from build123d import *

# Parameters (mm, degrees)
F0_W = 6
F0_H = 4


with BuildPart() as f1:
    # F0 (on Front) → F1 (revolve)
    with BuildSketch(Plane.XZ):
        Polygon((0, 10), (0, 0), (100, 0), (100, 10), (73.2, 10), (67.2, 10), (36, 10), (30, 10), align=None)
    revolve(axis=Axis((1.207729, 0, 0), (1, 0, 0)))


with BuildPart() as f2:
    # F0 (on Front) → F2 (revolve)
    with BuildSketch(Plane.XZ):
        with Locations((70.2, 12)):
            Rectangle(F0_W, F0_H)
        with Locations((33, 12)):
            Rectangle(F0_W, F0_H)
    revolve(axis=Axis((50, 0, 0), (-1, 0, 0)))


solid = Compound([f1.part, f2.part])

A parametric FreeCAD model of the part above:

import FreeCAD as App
import Part
import Sketcher


def add_polygon(sketch, points):
    """Adds a closed chain of lines whose ends are joined by coincident constraints."""
    first, n = sketch.GeometryCount, len(points)
    for a, b in zip(points, points[1:] + points[:1]):
        sketch.addGeometry(Part.LineSegment(App.Vector(*a, 0), App.Vector(*b, 0)), False)
    for i in range(n):
        sketch.addConstraint(Sketcher.Constraint("Coincident", first + i, 2, first + (i + 1) % n, 1))

doc = App.newDocument("Part")
params = doc.addObject("Spreadsheet::Sheet", "Params")
for row, (alias, value) in enumerate([
    ("sketch1_width", "100 mm"),
    ("sketch1_height", "10 mm"),
    ("revolution_angle", "360 deg"),
    ("sketch2_width", "6 mm"),
    ("sketch2_height", "4 mm"),
    ("revolution2_angle", "360 deg"),
], start=1):
    params.set(f"A{row}", alias)
    params.set(f"B{row}", "=" + value)
    params.setAlias(f"B{row}", alias)

body = doc.addObject("PartDesign::Body", "Body")

sketch1 = body.newObject("Sketcher::SketchObject", "Sketch")
sketch1.AttachmentSupport = (doc.getObject("XZ_Plane"), [""])
sketch1.MapMode = "FlatFace"
add_polygon(sketch1, [(0, 10), (0, 0), (100, 0), (100, 10)])
sketch1.addConstraint([
    Sketcher.Constraint("Vertical", 0),
    Sketcher.Constraint("Horizontal", 1),
    Sketcher.Constraint("Vertical", 2),
    Sketcher.Constraint("Horizontal", 3),
    Sketcher.Constraint("Coincident", 0, 2, -1, 1),
    Sketcher.Constraint("DistanceX", 1, 1, 1, 2, 100.0),
    Sketcher.Constraint("DistanceY", 0, 2, 0, 1, 10.0),
])
sketch1.setExpression("Constraints[9]", "Params.sketch1_width")
sketch1.setExpression("Constraints[10]", "Params.sketch1_height")
revolution = body.newObject("PartDesign::Revolution", "Revolution")
revolution.Profile = sketch1
revolution.ReferenceAxis = (sketch1, ["H_Axis"])
revolution.setExpression("Angle", "Params.revolution_angle")
body2 = doc.addObject("PartDesign::Body", "Body001")
body2.AllowCompound = True

sketch2 = body2.newObject("Sketcher::SketchObject", "Sketch001")
sketch2.AttachmentSupport = (doc.getObject("XZ_Plane001"), [""])
sketch2.MapMode = "FlatFace"
add_polygon(sketch2, [(67.2, 14), (67.2, 10), (73.2, 10), (73.2, 14)])
add_polygon(sketch2, [(30, 14), (30, 10), (36, 10), (36, 14)])
sketch2.addConstraint([
    Sketcher.Constraint("Vertical", 0),
    Sketcher.Constraint("Horizontal", 1),
    Sketcher.Constraint("Vertical", 2),
    Sketcher.Constraint("Horizontal", 3),
    Sketcher.Constraint("Vertical", 4),
    Sketcher.Constraint("Horizontal", 5),
    Sketcher.Constraint("Vertical", 6),
    Sketcher.Constraint("Horizontal", 7),
    Sketcher.Constraint("Horizontal", 1, 2, 4, 2),
    Sketcher.Constraint("Horizontal", 3, 2, 6, 2),
    Sketcher.Constraint("Equal", 3, 5),
    Sketcher.Constraint("DistanceX", 1, 1, 1, 2, 6.0),
    Sketcher.Constraint("DistanceY", 0, 2, 0, 1, 4.0),
    Sketcher.Constraint("DistanceY", -1, 1, 0, 2, 10.0),
    Sketcher.Constraint("DistanceX", -1, 1, 4, 2, 30.0),
    Sketcher.Constraint("DistanceX", -1, 1, 0, 2, 67.2),
])
sketch2.setExpression("Constraints[19]", "Params.sketch2_width")
sketch2.setExpression("Constraints[20]", "Params.sketch2_height")
revolution2 = body2.newObject("PartDesign::Revolution", "Revolution001")
revolution2.Profile = sketch2
revolution2.ReferenceAxis = (sketch2, ["H_Axis"])
revolution2.setExpression("Angle", "Params.revolution2_angle")

doc.recompute()
